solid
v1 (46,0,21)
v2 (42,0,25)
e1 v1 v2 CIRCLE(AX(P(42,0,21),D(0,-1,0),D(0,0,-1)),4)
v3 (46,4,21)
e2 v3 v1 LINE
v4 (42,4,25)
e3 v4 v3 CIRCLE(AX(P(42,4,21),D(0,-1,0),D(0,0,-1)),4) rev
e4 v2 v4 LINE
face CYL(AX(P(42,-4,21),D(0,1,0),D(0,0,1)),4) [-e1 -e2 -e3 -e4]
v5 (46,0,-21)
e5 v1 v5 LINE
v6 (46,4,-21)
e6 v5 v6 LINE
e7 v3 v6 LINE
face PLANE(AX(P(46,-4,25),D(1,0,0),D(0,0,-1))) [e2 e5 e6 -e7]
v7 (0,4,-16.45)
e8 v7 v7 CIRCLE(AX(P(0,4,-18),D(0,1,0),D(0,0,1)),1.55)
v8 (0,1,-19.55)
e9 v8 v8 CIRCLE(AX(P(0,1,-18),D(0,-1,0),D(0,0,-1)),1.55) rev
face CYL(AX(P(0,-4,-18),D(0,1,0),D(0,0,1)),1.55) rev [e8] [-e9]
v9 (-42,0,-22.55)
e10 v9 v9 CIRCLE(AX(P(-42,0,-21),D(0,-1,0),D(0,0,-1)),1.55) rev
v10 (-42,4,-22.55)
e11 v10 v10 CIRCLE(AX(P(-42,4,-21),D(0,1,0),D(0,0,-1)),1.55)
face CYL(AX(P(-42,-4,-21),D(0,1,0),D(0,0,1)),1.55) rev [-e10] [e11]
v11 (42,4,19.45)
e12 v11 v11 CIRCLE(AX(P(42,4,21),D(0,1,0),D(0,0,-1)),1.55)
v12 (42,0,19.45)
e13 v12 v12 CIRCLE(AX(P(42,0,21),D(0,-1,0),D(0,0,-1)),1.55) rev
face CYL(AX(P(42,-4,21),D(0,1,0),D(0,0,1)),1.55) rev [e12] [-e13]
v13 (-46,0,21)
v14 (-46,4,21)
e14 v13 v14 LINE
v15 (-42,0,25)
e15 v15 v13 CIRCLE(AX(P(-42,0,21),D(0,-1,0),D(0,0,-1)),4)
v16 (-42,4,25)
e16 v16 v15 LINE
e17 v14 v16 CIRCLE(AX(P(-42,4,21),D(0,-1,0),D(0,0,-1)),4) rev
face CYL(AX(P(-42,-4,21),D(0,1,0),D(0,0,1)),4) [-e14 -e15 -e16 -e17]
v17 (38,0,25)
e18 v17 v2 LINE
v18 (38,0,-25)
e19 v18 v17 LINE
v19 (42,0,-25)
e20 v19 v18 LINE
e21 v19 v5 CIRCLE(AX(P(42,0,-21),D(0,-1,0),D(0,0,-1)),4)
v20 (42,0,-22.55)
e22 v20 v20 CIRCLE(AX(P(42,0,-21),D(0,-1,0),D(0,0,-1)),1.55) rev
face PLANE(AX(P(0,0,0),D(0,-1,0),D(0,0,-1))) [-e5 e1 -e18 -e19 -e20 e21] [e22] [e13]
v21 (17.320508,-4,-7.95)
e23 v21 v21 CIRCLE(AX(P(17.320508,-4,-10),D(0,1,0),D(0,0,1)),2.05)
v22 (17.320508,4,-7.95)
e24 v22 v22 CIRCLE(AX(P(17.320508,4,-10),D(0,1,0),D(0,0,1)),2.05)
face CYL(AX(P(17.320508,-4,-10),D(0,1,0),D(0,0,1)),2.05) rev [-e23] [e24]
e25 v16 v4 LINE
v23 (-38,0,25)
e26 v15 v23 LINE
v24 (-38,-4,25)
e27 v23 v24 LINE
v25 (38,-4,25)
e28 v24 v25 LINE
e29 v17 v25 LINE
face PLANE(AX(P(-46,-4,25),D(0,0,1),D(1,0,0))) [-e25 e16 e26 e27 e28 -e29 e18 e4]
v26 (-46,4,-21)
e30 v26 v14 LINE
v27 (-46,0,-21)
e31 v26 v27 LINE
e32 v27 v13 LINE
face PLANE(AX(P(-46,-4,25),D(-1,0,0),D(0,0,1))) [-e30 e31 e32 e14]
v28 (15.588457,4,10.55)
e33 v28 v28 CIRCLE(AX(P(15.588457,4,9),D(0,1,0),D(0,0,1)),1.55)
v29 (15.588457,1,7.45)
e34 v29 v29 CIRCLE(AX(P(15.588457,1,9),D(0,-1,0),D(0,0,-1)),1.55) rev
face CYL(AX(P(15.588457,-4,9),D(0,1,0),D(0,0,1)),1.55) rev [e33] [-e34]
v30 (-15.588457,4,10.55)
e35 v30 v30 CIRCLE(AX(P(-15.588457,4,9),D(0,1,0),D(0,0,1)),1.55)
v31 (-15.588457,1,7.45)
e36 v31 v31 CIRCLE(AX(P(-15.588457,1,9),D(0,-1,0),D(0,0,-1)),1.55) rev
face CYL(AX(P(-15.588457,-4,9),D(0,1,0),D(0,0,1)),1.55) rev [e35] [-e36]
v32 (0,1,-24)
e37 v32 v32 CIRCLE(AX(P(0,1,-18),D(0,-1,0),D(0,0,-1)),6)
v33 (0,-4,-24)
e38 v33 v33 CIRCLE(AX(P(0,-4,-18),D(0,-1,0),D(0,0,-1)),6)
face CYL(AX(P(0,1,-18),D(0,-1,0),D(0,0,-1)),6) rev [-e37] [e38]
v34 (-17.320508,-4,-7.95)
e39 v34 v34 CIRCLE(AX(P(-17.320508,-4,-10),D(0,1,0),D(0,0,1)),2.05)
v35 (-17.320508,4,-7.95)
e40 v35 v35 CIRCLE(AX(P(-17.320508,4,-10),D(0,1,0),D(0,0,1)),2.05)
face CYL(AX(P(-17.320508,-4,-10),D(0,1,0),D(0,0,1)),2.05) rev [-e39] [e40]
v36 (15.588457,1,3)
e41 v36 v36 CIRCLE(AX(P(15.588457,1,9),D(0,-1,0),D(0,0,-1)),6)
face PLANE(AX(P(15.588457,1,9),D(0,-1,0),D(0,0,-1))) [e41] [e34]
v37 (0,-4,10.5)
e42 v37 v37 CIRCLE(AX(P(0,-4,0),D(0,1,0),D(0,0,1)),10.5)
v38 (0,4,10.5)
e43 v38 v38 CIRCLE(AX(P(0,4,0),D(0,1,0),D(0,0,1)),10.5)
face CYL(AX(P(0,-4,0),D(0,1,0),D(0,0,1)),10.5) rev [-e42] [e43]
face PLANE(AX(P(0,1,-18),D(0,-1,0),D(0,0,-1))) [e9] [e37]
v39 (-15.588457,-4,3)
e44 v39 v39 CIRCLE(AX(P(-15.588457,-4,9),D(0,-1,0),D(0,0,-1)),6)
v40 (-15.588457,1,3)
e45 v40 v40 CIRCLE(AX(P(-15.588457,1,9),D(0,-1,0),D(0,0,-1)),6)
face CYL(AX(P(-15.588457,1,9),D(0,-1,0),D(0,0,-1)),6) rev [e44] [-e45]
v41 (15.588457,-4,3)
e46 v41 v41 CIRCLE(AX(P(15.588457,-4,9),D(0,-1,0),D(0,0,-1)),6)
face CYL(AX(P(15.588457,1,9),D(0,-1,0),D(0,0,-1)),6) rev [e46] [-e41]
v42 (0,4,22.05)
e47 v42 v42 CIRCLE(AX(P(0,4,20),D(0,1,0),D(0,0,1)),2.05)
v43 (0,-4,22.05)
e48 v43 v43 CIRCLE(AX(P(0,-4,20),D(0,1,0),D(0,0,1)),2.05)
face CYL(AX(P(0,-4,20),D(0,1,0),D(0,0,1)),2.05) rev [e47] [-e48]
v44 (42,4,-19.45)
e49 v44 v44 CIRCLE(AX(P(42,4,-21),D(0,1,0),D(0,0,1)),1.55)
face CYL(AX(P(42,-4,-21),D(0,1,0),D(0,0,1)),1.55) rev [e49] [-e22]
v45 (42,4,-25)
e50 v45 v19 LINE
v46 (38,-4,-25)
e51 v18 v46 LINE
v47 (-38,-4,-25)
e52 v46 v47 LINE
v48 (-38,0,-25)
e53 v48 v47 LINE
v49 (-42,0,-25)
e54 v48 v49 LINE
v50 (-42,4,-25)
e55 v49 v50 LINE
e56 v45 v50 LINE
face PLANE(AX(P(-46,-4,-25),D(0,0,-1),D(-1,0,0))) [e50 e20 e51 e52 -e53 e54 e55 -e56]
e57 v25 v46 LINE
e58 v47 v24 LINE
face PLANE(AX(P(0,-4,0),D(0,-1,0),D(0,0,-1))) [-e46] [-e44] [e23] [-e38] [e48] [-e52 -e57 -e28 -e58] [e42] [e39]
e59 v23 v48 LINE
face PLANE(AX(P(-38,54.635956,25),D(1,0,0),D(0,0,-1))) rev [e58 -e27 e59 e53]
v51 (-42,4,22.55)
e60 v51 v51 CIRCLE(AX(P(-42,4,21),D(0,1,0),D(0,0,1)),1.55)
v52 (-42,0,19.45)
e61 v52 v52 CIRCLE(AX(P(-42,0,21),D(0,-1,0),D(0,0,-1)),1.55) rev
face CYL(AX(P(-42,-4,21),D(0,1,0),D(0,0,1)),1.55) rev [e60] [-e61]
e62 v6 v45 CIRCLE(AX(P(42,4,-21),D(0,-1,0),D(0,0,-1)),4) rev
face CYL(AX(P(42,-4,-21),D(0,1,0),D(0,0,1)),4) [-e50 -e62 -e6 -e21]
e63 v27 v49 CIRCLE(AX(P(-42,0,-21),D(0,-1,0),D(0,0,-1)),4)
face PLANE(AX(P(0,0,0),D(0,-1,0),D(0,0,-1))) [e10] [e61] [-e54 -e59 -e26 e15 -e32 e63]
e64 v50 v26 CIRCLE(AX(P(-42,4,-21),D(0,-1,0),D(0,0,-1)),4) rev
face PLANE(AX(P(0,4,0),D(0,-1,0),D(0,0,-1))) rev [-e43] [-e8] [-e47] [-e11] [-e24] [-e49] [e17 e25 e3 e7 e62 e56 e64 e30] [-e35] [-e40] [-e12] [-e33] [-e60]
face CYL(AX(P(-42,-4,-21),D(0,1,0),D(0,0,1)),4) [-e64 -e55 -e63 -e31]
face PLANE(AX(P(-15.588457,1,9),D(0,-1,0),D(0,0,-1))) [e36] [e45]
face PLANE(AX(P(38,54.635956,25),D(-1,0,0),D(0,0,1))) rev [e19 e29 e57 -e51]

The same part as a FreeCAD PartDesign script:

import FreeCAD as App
import Part
import Sketcher
from FreeCAD import Vector


def edges_at(feature, points):
    """Names of the edges that pass closest to the given points."""
    edges = feature.Shape.Edges
    near = lambda p: min(range(len(edges)), key=lambda i: edges[i].distToShape(Part.Vertex(*p))[0])
    return sorted({f"Edge{near(p) + 1}" for p in points})


def add_polygon(sketch, points):
    """Adds a closed chain of lines whose ends are joined by coincident constraints."""
    first, n = sketch.GeometryCount, len(points)
    for a, b in zip(points, points[1:] + points[:1]):
        sketch.addGeometry(Part.LineSegment(App.Vector(*a, 0), App.Vector(*b, 0)), False)
    for i in range(n):
        sketch.addConstraint(Sketcher.Constraint("Coincident", first + i, 2, first + (i + 1) % n, 1))

doc = App.newDocument("Part")
params = doc.addObject("Spreadsheet::Sheet", "Params")
for row, (alias, value) in enumerate([
    ("sketch1_diameter", "21 mm"),
    ("sketch1_diameter2", "3.1 mm"),
    ("sketch1_diameter3", "4.1 mm"),
    ("sketch1_width", "92 mm"),
    ("sketch1_height", "50 mm"),
    ("pad1_length", "8 mm"),
    ("sketch2_width", "8 mm"),
    ("sketch2_height", "50 mm"),
    ("pocket1_length", "4 mm"),
    ("fillet_radius", "4 mm"),
    ("sketch3_diameter", "12 mm"),
    ("pocket2_length", "5 mm"),
], start=1):
    params.set(f"A{row}", alias)
    params.set(f"B{row}", "=" + value)
    params.setAlias(f"B{row}", alias)

body = doc.addObject("PartDesign::Body", "Body")

sketch1 = doc.addObject("Sketcher::SketchObject", "Sketch")
body.addObject(sketch1)
sketch1.AttachmentSupport = (doc.XZ_Plane, [""])
sketch1.MapMode = "FlatFace"
add_polygon(sketch1, [(-46, -25), (-46, 25), (46, 25), (46, -25)])
sketch1.addGeometry(Part.Circle(Vector(-42, 21, 0), Vector(0, 0, 1), 1.6), False)
sketch1.addGeometry(Part.Circle(Vector(-15.6, 9, 0), Vector(0, 0, 1), 1.6), False)
sketch1.addGeometry(Part.Circle(Vector(0, 20, 0), Vector(0, 0, 1), 2), False)
sketch1.addGeometry(Part.Circle(Vector(42, 21, 0), Vector(0, 0, 1), 1.6), False)
sketch1.addGeometry(Part.Circle(Vector(15.6, 9, 0), Vector(0, 0, 1), 1.6), False)
sketch1.addGeometry(Part.Circle(Vector(-17.3, -10, 0), Vector(0, 0, 1), 2), False)
sketch1.addGeometry(Part.Circle(Vector(-42, -21, 0), Vector(0, 0, 1), 1.6), False)
sketch1.addGeometry(Part.Circle(Vector(0, 0, 0), Vector(0, 0, 1), 10.5), False)
sketch1.addGeometry(Part.Circle(Vector(17.3, -10, 0), Vector(0, 0, 1), 2), False)
sketch1.addGeometry(Part.Circle(Vector(0, -18, 0), Vector(0, 0, 1), 1.6), False)
sketch1.addGeometry(Part.Circle(Vector(42, -21, 0), Vector(0, 0, 1), 1.6), False)
sketch1.addConstraint(Sketcher.Constraint("Vertical", 0))
sketch1.addConstraint(Sketcher.Constraint("Horizontal", 1))
sketch1.addConstraint(Sketcher.Constraint("Vertical", 2))
sketch1.addConstraint(Sketcher.Constraint("Horizontal", 3))
sketch1.addConstraint(Sketcher.Constraint("Coincident", 11, 3, -1, 1))
sketch1.addConstraint(Sketcher.Constraint("Equal", 4, 5))
sketch1.addConstraint(Sketcher.Constraint("Equal", 5, 7))
sketch1.addConstraint(Sketcher.Constraint("Equal", 7, 8))
sketch1.addConstraint(Sketcher.Constraint("Equal", 6, 9))
sketch1.addConstraint(Sketcher.Constraint("Equal", 8, 10))
sketch1.addConstraint(Sketcher.Constraint("Equal", 9, 12))
sketch1.addConstraint(Sketcher.Constraint("Equal", 10, 13))
sketch1.addConstraint(Sketcher.Constraint("Equal", 13, 14))
sketch1.addConstraint(Sketcher.Constraint("Symmetric", 7, 3, 10, 3, -1, 1))
sketch1.addConstraint(Sketcher.Constraint("Symmetric", 4, 3, 14, 3, -1, 1))
sketch1.addConstraint(Sketcher.Constraint("Symmetric", 0, 2, 2, 2, -1, 1))
sketch1.addConstraint(Sketcher.Constraint("Symmetric", 4, 3, 7, 3, -2))
sketch1.addConstraint(Sketcher.Constraint("Symmetric", 5, 3, 8, 3, -2))
sketch1.addConstraint(Sketcher.Constraint("Symmetric", 9, 3, 12, 3, -2))
sketch1.addConstraint(Sketcher.Constraint("PointOnObject", 6, 3, -2))
sketch1.addConstraint(Sketcher.Constraint("PointOnObject", 13, 3, -2))
sketch1.addConstraint(Sketcher.Constraint("Diameter", 11, 21.0))
sketch1.addConstraint(Sketcher.Constraint("Diameter", 4, 3.1))
sketch1.addConstraint(Sketcher.Constraint("Diameter", 6, 4.1))
sketch1.addConstraint(Sketcher.Constraint("DistanceX", 1, 1, 1, 2, 92.0))
sketch1.addConstraint(Sketcher.Constraint("DistanceY", 0, 1, 0, 2, 50.0))
sketch1.addConstraint(Sketcher.Constraint("DistanceX", 4, 3, -1, 1, 42.0))
sketch1.addConstraint(Sketcher.Constraint("DistanceY", -1, 1, 4, 3, 21.0))
sketch1.addConstraint(Sketcher.Constraint("DistanceY", -1, 1, 5, 3, 9.0))
sketch1.addConstraint(Sketcher.Constraint("DistanceY", -1, 1, 6, 3, 20.0))
sketch1.addConstraint(Sketcher.Constraint("DistanceY", 9, 3, -1, 1, 10.0))
sketch1.addConstraint(Sketcher.Constraint("DistanceY", 13, 3, -1, 1, 18.0))
sketch1.addConstraint(Sketcher.Constraint("DistanceX", 9, 3, -1, 1, 17.320508))
sketch1.addConstraint(Sketcher.Constraint("DistanceX", 9, 3, 5, 3, 1.732051))
sketch1.setExpression("Constraints[25]", "Params.sketch1_diameter")
sketch1.setExpression("Constraints[26]", "Params.sketch1_diameter2")
sketch1.setExpression("Constraints[27]", "Params.sketch1_diameter3")
sketch1.setExpression("Constraints[28]", "Params.sketch1_width")
sketch1.setExpression("Constraints[29]", "Params.sketch1_height")
pad1 = doc.addObject("PartDesign::Pad", "Pad")
body.addObject(pad1)
pad1.Profile = sketch1
pad1.setExpression("Length", "Params.pad1_length")
pad1.Midplane = True

sketch2 = doc.addObject("Sketcher::SketchObject", "Sketch001")
body.addObject(sketch2)
sketch2.AttachmentSupport = (doc.XZ_Plane, [""])
sketch2.MapMode = "FlatFace"
sketch2.AttachmentOffset = App.Placement(Vector(0, 0, 4), App.Rotation())
add_polygon(sketch2, [(38, 25), (38, -25), (46, -25), (46, 25)])
add_polygon(sketch2, [(-46, 25), (-46, -25), (-38, -25), (-38, 25)])
sketch2.addConstraint(Sketcher.Constraint("Vertical", 0))
sketch2.addConstraint(Sketcher.Constraint("Horizontal", 1))
sketch2.addConstraint(Sketcher.Constraint("Vertical", 2))
sketch2.addConstraint(Sketcher.Constraint("Horizontal", 3))
sketch2.addConstraint(Sketcher.Constraint("Vertical", 4))
sketch2.addConstraint(Sketcher.Constraint("Horizontal", 5))
sketch2.addConstraint(Sketcher.Constraint("Vertical", 6))
sketch2.addConstraint(Sketcher.Constraint("Horizontal", 7))
sketch2.addConstraint(Sketcher.Constraint("Symmetric", 2, 2, 4, 2, -1, 1))
sketch2.addConstraint(Sketcher.Constraint("Symmetric", 0, 2, 6, 2, -1, 1))
sketch2.addConstraint(Sketcher.Constraint("Horizontal", 1, 2, 4, 2))
sketch2.addConstraint(Sketcher.Constraint("DistanceX", 1, 1, 1, 2, 8.0))
sketch2.addConstraint(Sketcher.Constraint("DistanceY", 0, 2, 0, 1, 50.0))
sketch2.addConstraint(Sketcher.Constraint("DistanceX", -1, 1, 0, 2, 38.0))
sketch2.setExpression("Constraints[19]", "Params.sketch2_width")
sketch2.setExpression("Constraints[20]", "Params.sketch2_height")
pocket1 = doc.addObject("PartDesign::Pocket", "Pocket")
body.addObject(pocket1)
pocket1.Profile = sketch2
pocket1.setExpression("Length", "Params.pocket1_length")
doc.recompute()

fillet = doc.addObject("PartDesign::Fillet", "Fillet")
body.addObject(fillet)
fillet.Base = (pocket1, edges_at(pocket1, [
    (46, 2, -25),
    (46, 2, 25),
    (-46, 2, -25),
    (-46, 2, 25),
]))
fillet.setExpression("Radius", "Params.fillet_radius")

sketch3 = doc.addObject("Sketcher::SketchObject", "Sketch002")
body.addObject(sketch3)
sketch3.AttachmentSupport = (doc.XZ_Plane, [""])
sketch3.MapMode = "FlatFace"
sketch3.AttachmentOffset = App.Placement(Vector(0, 0, 4), App.Rotation())
sketch3.addGeometry(Part.Circle(Vector(0, -18, 0), Vector(0, 0, 1), 6), False)
sketch3.addGeometry(Part.Circle(Vector(-16, 9, 0), Vector(0, 0, 1), 6), False)
sketch3.addGeometry(Part.Circle(Vector(16, 9, 0), Vector(0, 0, 1), 6), False)
sketch3.addConstraint(Sketcher.Constraint("Equal", 0, 1))
sketch3.addConstraint(Sketcher.Constraint("Equal", 1, 2))
sketch3.addConstraint(Sketcher.Constraint("Symmetric", 1, 3, 2, 3, -2))
sketch3.addConstraint(Sketcher.Constraint("PointOnObject", 0, 3, -2))
sketch3.addConstraint(Sketcher.Constraint("Diameter", 0, 12.0))
sketch3.addConstraint(Sketcher.Constraint("DistanceY", 0, 3, -1, 1, 18.0))
sketch3.addConstraint(Sketcher.Constraint("DistanceY", -1, 1, 1, 3, 9.0))
sketch3.addConstraint(Sketcher.Constraint("DistanceX", 1, 3, -1, 1, 15.588457))
sketch3.setExpression("Constraints[4]", "Params.sketch3_diameter")
pocket2 = doc.addObject("PartDesign::Pocket", "Pocket001")
body.addObject(pocket2)
pocket2.Profile = sketch3
pocket2.setExpression("Length", "Params.pocket2_length")

doc.recompute()
